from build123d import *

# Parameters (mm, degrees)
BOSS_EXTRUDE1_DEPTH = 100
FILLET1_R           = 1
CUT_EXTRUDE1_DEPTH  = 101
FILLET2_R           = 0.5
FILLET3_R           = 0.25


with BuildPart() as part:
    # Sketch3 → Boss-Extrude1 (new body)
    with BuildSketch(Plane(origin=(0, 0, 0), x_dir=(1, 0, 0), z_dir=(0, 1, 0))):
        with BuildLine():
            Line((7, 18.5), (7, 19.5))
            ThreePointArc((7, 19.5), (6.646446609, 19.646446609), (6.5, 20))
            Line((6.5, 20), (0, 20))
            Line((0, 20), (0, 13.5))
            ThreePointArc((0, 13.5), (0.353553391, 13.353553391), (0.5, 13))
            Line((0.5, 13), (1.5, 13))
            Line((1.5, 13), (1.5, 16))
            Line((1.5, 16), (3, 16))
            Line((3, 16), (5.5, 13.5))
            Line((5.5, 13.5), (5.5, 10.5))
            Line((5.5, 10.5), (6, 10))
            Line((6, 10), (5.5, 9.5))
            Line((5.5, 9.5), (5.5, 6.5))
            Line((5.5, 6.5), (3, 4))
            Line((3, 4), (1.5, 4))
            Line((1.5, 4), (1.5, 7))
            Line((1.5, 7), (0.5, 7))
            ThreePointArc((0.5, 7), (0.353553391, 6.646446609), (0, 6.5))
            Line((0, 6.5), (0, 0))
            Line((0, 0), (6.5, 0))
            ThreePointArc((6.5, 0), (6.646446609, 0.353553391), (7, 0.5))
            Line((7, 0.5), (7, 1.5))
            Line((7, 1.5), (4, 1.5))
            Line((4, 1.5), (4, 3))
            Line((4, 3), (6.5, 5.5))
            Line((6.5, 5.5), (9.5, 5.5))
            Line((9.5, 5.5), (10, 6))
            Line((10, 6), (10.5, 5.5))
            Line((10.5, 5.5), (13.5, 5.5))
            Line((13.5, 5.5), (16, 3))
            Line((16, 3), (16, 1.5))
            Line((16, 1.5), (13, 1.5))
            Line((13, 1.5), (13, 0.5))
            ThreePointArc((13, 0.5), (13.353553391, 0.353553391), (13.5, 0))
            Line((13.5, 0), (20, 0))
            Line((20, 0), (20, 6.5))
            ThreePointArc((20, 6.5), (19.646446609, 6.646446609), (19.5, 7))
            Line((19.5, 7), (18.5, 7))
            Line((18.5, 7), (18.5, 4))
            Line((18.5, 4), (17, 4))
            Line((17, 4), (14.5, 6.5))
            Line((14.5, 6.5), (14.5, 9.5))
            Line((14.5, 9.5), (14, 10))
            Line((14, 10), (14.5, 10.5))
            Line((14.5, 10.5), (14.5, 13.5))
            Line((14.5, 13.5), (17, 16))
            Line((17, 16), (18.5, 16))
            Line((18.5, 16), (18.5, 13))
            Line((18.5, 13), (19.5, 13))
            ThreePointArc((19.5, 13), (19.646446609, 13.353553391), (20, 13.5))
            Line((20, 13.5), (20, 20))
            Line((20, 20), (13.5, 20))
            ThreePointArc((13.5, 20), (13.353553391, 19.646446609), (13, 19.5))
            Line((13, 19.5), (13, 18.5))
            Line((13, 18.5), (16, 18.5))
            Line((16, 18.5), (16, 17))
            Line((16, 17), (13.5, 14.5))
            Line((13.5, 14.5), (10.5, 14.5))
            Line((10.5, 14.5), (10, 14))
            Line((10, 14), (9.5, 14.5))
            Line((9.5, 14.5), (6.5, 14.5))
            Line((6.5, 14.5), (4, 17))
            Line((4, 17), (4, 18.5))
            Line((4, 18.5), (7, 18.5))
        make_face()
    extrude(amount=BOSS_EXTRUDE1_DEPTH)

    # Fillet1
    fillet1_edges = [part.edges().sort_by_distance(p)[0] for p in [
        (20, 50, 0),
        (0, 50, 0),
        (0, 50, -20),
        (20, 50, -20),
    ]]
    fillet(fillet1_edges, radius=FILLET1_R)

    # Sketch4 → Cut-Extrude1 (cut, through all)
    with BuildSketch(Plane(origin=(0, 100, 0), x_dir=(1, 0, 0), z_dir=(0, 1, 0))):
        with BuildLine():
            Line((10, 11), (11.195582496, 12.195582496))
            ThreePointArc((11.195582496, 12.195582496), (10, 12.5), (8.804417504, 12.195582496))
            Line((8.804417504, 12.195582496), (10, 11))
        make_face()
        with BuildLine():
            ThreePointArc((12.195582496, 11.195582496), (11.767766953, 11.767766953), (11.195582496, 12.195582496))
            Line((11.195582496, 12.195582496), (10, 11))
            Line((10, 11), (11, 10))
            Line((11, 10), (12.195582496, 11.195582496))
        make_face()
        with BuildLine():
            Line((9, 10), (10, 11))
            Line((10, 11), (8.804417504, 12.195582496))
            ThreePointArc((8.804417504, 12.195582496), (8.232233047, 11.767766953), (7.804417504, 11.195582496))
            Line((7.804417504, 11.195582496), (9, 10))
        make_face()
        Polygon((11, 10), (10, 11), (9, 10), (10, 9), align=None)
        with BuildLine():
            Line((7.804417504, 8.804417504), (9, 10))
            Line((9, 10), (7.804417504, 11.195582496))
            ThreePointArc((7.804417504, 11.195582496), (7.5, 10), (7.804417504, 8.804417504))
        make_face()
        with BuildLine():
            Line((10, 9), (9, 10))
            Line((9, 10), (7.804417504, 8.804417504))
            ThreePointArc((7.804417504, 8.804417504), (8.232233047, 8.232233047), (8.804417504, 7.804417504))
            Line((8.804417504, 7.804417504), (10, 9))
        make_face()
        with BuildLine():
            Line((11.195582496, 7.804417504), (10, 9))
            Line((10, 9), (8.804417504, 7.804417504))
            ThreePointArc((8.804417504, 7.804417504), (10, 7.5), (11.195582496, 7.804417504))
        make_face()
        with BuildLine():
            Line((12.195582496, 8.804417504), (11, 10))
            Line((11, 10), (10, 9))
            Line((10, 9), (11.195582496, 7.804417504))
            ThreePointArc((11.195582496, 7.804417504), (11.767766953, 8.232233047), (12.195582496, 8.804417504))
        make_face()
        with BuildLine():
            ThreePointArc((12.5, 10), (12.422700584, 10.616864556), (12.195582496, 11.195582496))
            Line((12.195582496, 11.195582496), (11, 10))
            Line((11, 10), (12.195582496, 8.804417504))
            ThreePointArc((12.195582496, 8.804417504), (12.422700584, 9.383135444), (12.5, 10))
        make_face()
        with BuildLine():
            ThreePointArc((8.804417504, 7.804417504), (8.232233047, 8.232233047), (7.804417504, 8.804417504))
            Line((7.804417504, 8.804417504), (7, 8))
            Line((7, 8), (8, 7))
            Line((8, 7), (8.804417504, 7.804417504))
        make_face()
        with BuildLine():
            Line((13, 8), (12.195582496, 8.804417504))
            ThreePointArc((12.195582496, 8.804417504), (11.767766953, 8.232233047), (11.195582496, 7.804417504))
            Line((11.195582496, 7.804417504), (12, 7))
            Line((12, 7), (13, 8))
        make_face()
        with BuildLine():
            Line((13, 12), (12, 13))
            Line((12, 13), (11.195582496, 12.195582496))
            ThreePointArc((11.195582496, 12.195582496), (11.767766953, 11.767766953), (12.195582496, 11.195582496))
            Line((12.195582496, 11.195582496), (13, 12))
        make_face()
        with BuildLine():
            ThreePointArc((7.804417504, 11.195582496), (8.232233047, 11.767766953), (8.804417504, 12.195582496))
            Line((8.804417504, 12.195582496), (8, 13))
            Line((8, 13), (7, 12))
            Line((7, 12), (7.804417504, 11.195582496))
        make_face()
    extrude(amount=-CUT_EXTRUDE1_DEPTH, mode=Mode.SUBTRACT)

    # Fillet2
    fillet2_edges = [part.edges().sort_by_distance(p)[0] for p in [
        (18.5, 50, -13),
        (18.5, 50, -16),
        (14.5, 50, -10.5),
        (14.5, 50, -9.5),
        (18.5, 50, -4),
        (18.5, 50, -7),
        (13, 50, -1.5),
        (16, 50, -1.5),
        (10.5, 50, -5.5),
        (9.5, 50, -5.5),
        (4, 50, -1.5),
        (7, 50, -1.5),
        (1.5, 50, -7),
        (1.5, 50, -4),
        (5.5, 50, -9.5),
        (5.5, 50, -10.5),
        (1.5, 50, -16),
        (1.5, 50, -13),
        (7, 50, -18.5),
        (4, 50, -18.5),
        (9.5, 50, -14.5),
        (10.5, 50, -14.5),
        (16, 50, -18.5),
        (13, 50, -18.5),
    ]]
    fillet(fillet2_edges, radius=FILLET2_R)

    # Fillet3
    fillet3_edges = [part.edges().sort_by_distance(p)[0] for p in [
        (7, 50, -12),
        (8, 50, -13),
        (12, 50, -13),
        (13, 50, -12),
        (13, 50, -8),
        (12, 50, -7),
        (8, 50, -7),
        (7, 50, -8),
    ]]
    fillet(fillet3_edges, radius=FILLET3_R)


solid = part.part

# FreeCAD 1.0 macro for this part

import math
import FreeCAD as App
import Part
import Sketcher
from FreeCAD import Vector
Q = App.Units.Quantity


def edges_at(feature, points):
    """Names of the edges that pass closest to the given points."""
    edges = feature.Shape.Edges
    near = lambda p: min(range(len(edges)), key=lambda i: edges[i].distToShape(Part.Vertex(*p))[0])
    return sorted({f"Edge{near(p) + 1}" for p in points})

doc = App.newDocument("Part")
body = doc.addObject("PartDesign::Body", "Body")

sketch1 = body.newObject("Sketcher::SketchObject", "Sketch")
sketch1.AttachmentSupport = (doc.getObject("XZ_Plane"), [""])
sketch1.MapMode = "FlatFace"
sketch1.addGeometry(Part.LineSegment(Vector(7, -18.5, 0), Vector(7, -19.5, 0)), False)
sketch1.addGeometry(Part.ArcOfCircle(Part.Circle(Vector(7, -20, 0), Vector(0, 0, 1), 0.5), math.radians(90), math.radians(180)), False)
sketch1.addGeometry(Part.LineSegment(Vector(6.5, -20, 0), Vector(0, -20, 0)), False)
sketch1.addGeometry(Part.LineSegment(Vector(0, -20, 0), Vector(0, -13.5, 0)), False)
sketch1.addGeometry(Part.ArcOfCircle(Part.Circle(Vector(0, -13, 0), Vector(0, 0, 1), 0.5), math.radians(-90), math.radians(0)), False)
sketch1.addGeometry(Part.LineSegment(Vector(0.5, -13, 0), Vector(1.5, -13, 0)), False)
sketch1.addGeometry(Part.LineSegment(Vector(1.5, -13, 0), Vector(1.5, -16, 0)), False)
sketch1.addGeometry(Part.LineSegment(Vector(1.5, -16, 0), Vector(3, -16, 0)), False)
sketch1.addGeometry(Part.LineSegment(Vector(3, -16, 0), Vector(5.5, -13.5, 0)), False)
sketch1.addGeometry(Part.LineSegment(Vector(5.5, -13.5, 0), Vector(5.5, -10.5, 0)), False)
sketch1.addGeometry(Part.LineSegment(Vector(5.5, -10.5, 0), Vector(6, -10, 0)), False)
sketch1.addGeometry(Part.LineSegment(Vector(6, -10, 0), Vector(5.5, -9.5, 0)), False)
sketch1.addGeometry(Part.LineSegment(Vector(5.5, -9.5, 0), Vector(5.5, -6.5, 0)), False)
sketch1.addGeometry(Part.LineSegment(Vector(5.5, -6.5, 0), Vector(3, -4, 0)), False)
sketch1.addGeometry(Part.LineSegment(Vector(3, -4, 0), Vector(1.5, -4, 0)), False)
sketch1.addGeometry(Part.LineSegment(Vector(1.5, -4, 0), Vector(1.5, -7, 0)), False)
sketch1.addGeometry(Part.LineSegment(Vector(1.5, -7, 0), Vector(0.5, -7, 0)), False)
sketch1.addGeometry(Part.ArcOfCircle(Part.Circle(Vector(0, -7, 0), Vector(0, 0, 1), 0.5), math.radians(0), math.radians(90)), False)
sketch1.addGeometry(Part.LineSegment(Vector(0, -6.5, 0), Vector(0, 0, 0)), False)
sketch1.addGeometry(Part.LineSegment(Vector(0, 0, 0), Vector(6.5, 0, 0)), False)
sketch1.addGeometry(Part.ArcOfCircle(Part.Circle(Vector(7, 0, 0), Vector(0, 0, 1), 0.5), math.radians(180), math.radians(270)), False)
sketch1.addGeometry(Part.LineSegment(Vector(7, -0.5, 0), Vector(7, -1.5, 0)), False)
sketch1.addGeometry(Part.LineSegment(Vector(7, -1.5, 0), Vector(4, -1.5, 0)), False)
sketch1.addGeometry(Part.LineSegment(Vector(4, -1.5, 0), Vector(4, -3, 0)), False)
sketch1.addGeometry(Part.LineSegment(Vector(4, -3, 0), Vector(6.5, -5.5, 0)), False)
sketch1.addGeometry(Part.LineSegment(Vector(6.5, -5.5, 0), Vector(9.5, -5.5, 0)), False)
sketch1.addGeometry(Part.LineSegment(Vector(9.5, -5.5, 0), Vector(10, -6, 0)), False)
sketch1.addGeometry(Part.LineSegment(Vector(10, -6, 0), Vector(10.5, -5.5, 0)), False)
sketch1.addGeometry(Part.LineSegment(Vector(10.5, -5.5, 0), Vector(13.5, -5.5, 0)), False)
sketch1.addGeometry(Part.LineSegment(Vector(13.5, -5.5, 0), Vector(16, -3, 0)), False)
sketch1.addGeometry(Part.LineSegment(Vector(16, -3, 0), Vector(16, -1.5, 0)), False)
sketch1.addGeometry(Part.LineSegment(Vector(16, -1.5, 0), Vector(13, -1.5, 0)), False)
sketch1.addGeometry(Part.LineSegment(Vector(13, -1.5, 0), Vector(13, -0.5, 0)), False)
sketch1.addGeometry(Part.ArcOfCircle(Part.Circle(Vector(13, 0, 0), Vector(0, 0, 1), 0.5), math.radians(-90), math.radians(0)), False)
sketch1.addGeometry(Part.LineSegment(Vector(13.5, 0, 0), Vector(20, 0, 0)), False)
sketch1.addGeometry(Part.LineSegment(Vector(20, 0, 0), Vector(20, -6.5, 0)), False)
sketch1.addGeometry(Part.ArcOfCircle(Part.Circle(Vector(20, -7, 0), Vector(0, 0, 1), 0.5), math.radians(90), math.radians(180)), False)
sketch1.addGeometry(Part.LineSegment(Vector(19.5, -7, 0), Vector(18.5, -7, 0)), False)
sketch1.addGeometry(Part.LineSegment(Vector(18.5, -7, 0), Vector(18.5, -4, 0)), False)
sketch1.addGeometry(Part.LineSegment(Vector(18.5, -4, 0), Vector(17, -4, 0)), False)
sketch1.addGeometry(Part.LineSegment(Vector(17, -4, 0), Vector(14.5, -6.5, 0)), False)
sketch1.addGeometry(Part.LineSegment(Vector(14.5, -6.5, 0), Vector(14.5, -9.5, 0)), False)
sketch1.addGeometry(Part.LineSegment(Vector(14.5, -9.5, 0), Vector(14, -10, 0)), False)
sketch1.addGeometry(Part.LineSegment(Vector(14, -10, 0), Vector(14.5, -10.5, 0)), False)
sketch1.addGeometry(Part.LineSegment(Vector(14.5, -10.5, 0), Vector(14.5, -13.5, 0)), False)
sketch1.addGeometry(Part.LineSegment(Vector(14.5, -13.5, 0), Vector(17, -16, 0)), False)
sketch1.addGeometry(Part.LineSegment(Vector(17, -16, 0), Vector(18.5, -16, 0)), False)
sketch1.addGeometry(Part.LineSegment(Vector(18.5, -16, 0), Vector(18.5, -13, 0)), False)
sketch1.addGeometry(Part.LineSegment(Vector(18.5, -13, 0), Vector(19.5, -13, 0)), False)
sketch1.addGeometry(Part.ArcOfCircle(Part.Circle(Vector(20, -13, 0), Vector(0, 0, 1), 0.5), math.radians(180), math.radians(270)), False)
sketch1.addGeometry(Part.LineSegment(Vector(20, -13.5, 0), Vector(20, -20, 0)), False)
sketch1.addGeometry(Part.LineSegment(Vector(20, -20, 0), Vector(13.5, -20, 0)), False)
sketch1.addGeometry(Part.ArcOfCircle(Part.Circle(Vector(13, -20, 0), Vector(0, 0, 1), 0.5), math.radians(0), math.radians(90)), False)
sketch1.addGeometry(Part.LineSegment(Vector(13, -19.5, 0), Vector(13, -18.5, 0)), False)
sketch1.addGeometry(Part.LineSegment(Vector(13, -18.5, 0), Vector(16, -18.5, 0)), False)
sketch1.addGeometry(Part.LineSegment(Vector(16, -18.5, 0), Vector(16, -17, 0)), False)
sketch1.addGeometry(Part.LineSegment(Vector(16, -17, 0), Vector(13.5, -14.5, 0)), False)
sketch1.addGeometry(Part.LineSegment(Vector(13.5, -14.5, 0), Vector(10.5, -14.5, 0)), False)
sketch1.addGeometry(Part.LineSegment(Vector(10.5, -14.5, 0), Vector(10, -14, 0)), False)
sketch1.addGeometry(Part.LineSegment(Vector(10, -14, 0), Vector(9.5, -14.5, 0)), False)
sketch1.addGeometry(Part.LineSegment(Vector(9.5, -14.5, 0), Vector(6.5, -14.5, 0)), False)
sketch1.addGeometry(Part.LineSegment(Vector(6.5, -14.5, 0), Vector(4, -17, 0)), False)
sketch1.addGeometry(Part.LineSegment(Vector(4, -17, 0), Vector(4, -18.5, 0)), False)
sketch1.addGeometry(Part.LineSegment(Vector(4, -18.5, 0), Vector(7, -18.5, 0)), False)
sketch1.addConstraint(Sketcher.Constraint("Coincident", 0, 2, 1, 1))
sketch1.addConstraint(Sketcher.Constraint("Coincident", 1, 2, 2, 1))
sketch1.addConstraint(Sketcher.Constraint("Coincident", 2, 2, 3, 1))
sketch1.addConstraint(Sketcher.Constraint("Coincident", 3, 2, 4, 1))
sketch1.addConstraint(Sketcher.Constraint("Coincident", 4, 2, 5, 1))
sketch1.addConstraint(Sketcher.Constraint("Coincident", 5, 2, 6, 1))
sketch1.addConstraint(Sketcher.Constraint("Coincident", 6, 2, 7, 1))
sketch1.addConstraint(Sketcher.Constraint("Coincident", 7, 2, 8, 1))
sketch1.addConstraint(Sketcher.Constraint("Coincident", 8, 2, 9, 1))
sketch1.addConstraint(Sketcher.Constraint("Coincident", 9, 2, 10, 1))
sketch1.addConstraint(Sketcher.Constraint("Coincident", 10, 2, 11, 1))
sketch1.addConstraint(Sketcher.Constraint("Coincident", 11, 2, 12, 1))
sketch1.addConstraint(Sketcher.Constraint("Coincident", 12, 2, 13, 1))
sketch1.addConstraint(Sketcher.Constraint("Coincident", 13, 2, 14, 1))
sketch1.addConstraint(Sketcher.Constraint("Coincident", 14, 2, 15, 1))
sketch1.addConstraint(Sketcher.Constraint("Coincident", 15, 2, 16, 1))
sketch1.addConstraint(Sketcher.Constraint("Coincident", 16, 2, 17, 1))
sketch1.addConstraint(Sketcher.Constraint("Coincident", 17, 2, 18, 1))
sketch1.addConstraint(Sketcher.Constraint("Coincident", 18, 2, 19, 1))
sketch1.addConstraint(Sketcher.Constraint("Coincident", 19, 2, 20, 1))
sketch1.addConstraint(Sketcher.Constraint("Coincident", 20, 2, 21, 1))
sketch1.addConstraint(Sketcher.Constraint("Coincident", 21, 2, 22, 1))
sketch1.addConstraint(Sketcher.Constraint("Coincident", 22, 2, 23, 1))
sketch1.addConstraint(Sketcher.Constraint("Coincident", 23, 2, 24, 1))
sketch1.addConstraint(Sketcher.Constraint("Coincident", 24, 2, 25, 1))
sketch1.addConstraint(Sketcher.Constraint("Coincident", 25, 2, 26, 1))
sketch1.addConstraint(Sketcher.Constraint("Coincident", 26, 2, 27, 1))
sketch1.addConstraint(Sketcher.Constraint("Coincident", 27, 2, 28, 1))
sketch1.addConstraint(Sketcher.Constraint("Coincident", 28, 2, 29, 1))
sketch1.addConstraint(Sketcher.Constraint("Coincident", 29, 2, 30, 1))
sketch1.addConstraint(Sketcher.Constraint("Coincident", 30, 2, 31, 1))
sketch1.addConstraint(Sketcher.Constraint("Coincident", 31, 2, 32, 1))
sketch1.addConstraint(Sketcher.Constraint("Coincident", 32, 2, 33, 1))
sketch1.addConstraint(Sketcher.Constraint("Coincident", 33, 2, 34, 1))
sketch1.addConstraint(Sketcher.Constraint("Coincident", 34, 2, 35, 1))
sketch1.addConstraint(Sketcher.Constraint("Coincident", 35, 2, 36, 1))
sketch1.addConstraint(Sketcher.Constraint("Coincident", 36, 2, 37, 1))
sketch1.addConstraint(Sketcher.Constraint("Coincident", 37, 2, 38, 1))
sketch1.addConstraint(Sketcher.Constraint("Coincident", 38, 2, 39, 1))
sketch1.addConstraint(Sketcher.Constraint("Coincident", 39, 2, 40, 1))
sketch1.addConstraint(Sketcher.Constraint("Coincident", 40, 2, 41, 1))
sketch1.addConstraint(Sketcher.Constraint("Coincident", 41, 2, 42, 1))
sketch1.addConstraint(Sketcher.Constraint("Coincident", 42, 2, 43, 1))
sketch1.addConstraint(Sketcher.Constraint("Coincident", 43, 2, 44, 1))
sketch1.addConstraint(Sketcher.Constraint("Coincident", 44, 2, 45, 1))
sketch1.addConstraint(Sketcher.Constraint("Coincident", 45, 2, 46, 1))
sketch1.addConstraint(Sketcher.Constraint("Coincident", 46, 2, 47, 1))
sketch1.addConstraint(Sketcher.Constraint("Coincident", 47, 2, 48, 1))
sketch1.addConstraint(Sketcher.Constraint("Coincident", 48, 2, 49, 1))
sketch1.addConstraint(Sketcher.Constraint("Coincident", 49, 2, 50, 1))
sketch1.addConstraint(Sketcher.Constraint("Coincident", 50, 2, 51, 1))
sketch1.addConstraint(Sketcher.Constraint("Coincident", 51, 2, 52, 1))
sketch1.addConstraint(Sketcher.Constraint("Coincident", 52, 2, 53, 1))
sketch1.addConstraint(Sketcher.Constraint("Coincident", 53, 2, 54, 1))
sketch1.addConstraint(Sketcher.Constraint("Coincident", 54, 2, 55, 1))
sketch1.addConstraint(Sketcher.Constraint("Coincident", 55, 2, 56, 1))
sketch1.addConstraint(Sketcher.Constraint("Coincident", 56, 2, 57, 1))
sketch1.addConstraint(Sketcher.Constraint("Coincident", 57, 2, 58, 1))
sketch1.addConstraint(Sketcher.Constraint("Coincident", 58, 2, 59, 1))
sketch1.addConstraint(Sketcher.Constraint("Coincident", 59, 2, 60, 1))
sketch1.addConstraint(Sketcher.Constraint("Coincident", 60, 2, 61, 1))
sketch1.addConstraint(Sketcher.Constraint("Coincident", 61, 2, 62, 1))
sketch1.addConstraint(Sketcher.Constraint("Coincident", 62, 2, 63, 1))
sketch1.addConstraint(Sketcher.Constraint("Coincident", 63, 2, 0, 1))
sketch1.addConstraint(Sketcher.Constraint("Vertical", 0))
sketch1.addConstraint(Sketcher.Constraint("Horizontal", 2))
sketch1.addConstraint(Sketcher.Constraint("Vertical", 3))
sketch1.addConstraint(Sketcher.Constraint("Horizontal", 5))
sketch1.addConstraint(Sketcher.Constraint("Vertical", 6))
sketch1.addConstraint(Sketcher.Constraint("Horizontal", 7))
sketch1.addConstraint(Sketcher.Constraint("Vertical", 9))
sketch1.addConstraint(Sketcher.Constraint("Vertical", 12))
sketch1.addConstraint(Sketcher.Constraint("Horizontal", 14))
sketch1.addConstraint(Sketcher.Constraint("Vertical", 15))
sketch1.addConstraint(Sketcher.Constraint("Horizontal", 16))
sketch1.addConstraint(Sketcher.Constraint("Vertical", 18))
sketch1.addConstraint(Sketcher.Constraint("Horizontal", 19))
sketch1.addConstraint(Sketcher.Constraint("Vertical", 21))
sketch1.addConstraint(Sketcher.Constraint("Horizontal", 22))
sketch1.addConstraint(Sketcher.Constraint("Vertical", 23))
sketch1.addConstraint(Sketcher.Constraint("Horizontal", 25))
sketch1.addConstraint(Sketcher.Constraint("Horizontal", 28))
sketch1.addConstraint(Sketcher.Constraint("Vertical", 30))
sketch1.addConstraint(Sketcher.Constraint("Horizontal", 31))
sketch1.addConstraint(Sketcher.Constraint("Vertical", 32))
sketch1.addConstraint(Sketcher.Constraint("Horizontal", 34))
sketch1.addConstraint(Sketcher.Constraint("Vertical", 35))
sketch1.addConstraint(Sketcher.Constraint("Horizontal", 37))
sketch1.addConstraint(Sketcher.Constraint("Vertical", 38))
sketch1.addConstraint(Sketcher.Constraint("Horizontal", 39))
sketch1.addConstraint(Sketcher.Constraint("Vertical", 41))
sketch1.addConstraint(Sketcher.Constraint("Vertical", 44))
sketch1.addConstraint(Sketcher.Constraint("Horizontal", 46))
sketch1.addConstraint(Sketcher.Constraint("Vertical", 47))
sketch1.addConstraint(Sketcher.Constraint("Horizontal", 48))
sketch1.addConstraint(Sketcher.Constraint("Vertical", 50))
sketch1.addConstraint(Sketcher.Constraint("Horizontal", 51))
sketch1.addConstraint(Sketcher.Constraint("Vertical", 53))
sketch1.addConstraint(Sketcher.Constraint("Horizontal", 54))
sketch1.addConstraint(Sketcher.Constraint("Vertical", 55))
sketch1.addConstraint(Sketcher.Constraint("Horizontal", 57))
sketch1.addConstraint(Sketcher.Constraint("Horizontal", 60))
sketch1.addConstraint(Sketcher.Constraint("Vertical", 62))
sketch1.addConstraint(Sketcher.Constraint("Horizontal", 63))
sketch1.addConstraint(Sketcher.Constraint("Coincident", 18, 2, -1, 1))
sketch1.addConstraint(Sketcher.Constraint("Equal", 1, 4))
sketch1.addConstraint(Sketcher.Constraint("Equal", 4, 17))
sketch1.addConstraint(Sketcher.Constraint("Equal", 17, 20))
sketch1.addConstraint(Sketcher.Constraint("Equal", 20, 33))
sketch1.addConstraint(Sketcher.Constraint("Equal", 33, 36))
sketch1.addConstraint(Sketcher.Constraint("Equal", 36, 49))
sketch1.addConstraint(Sketcher.Constraint("Equal", 49, 52))
sketch1.addConstraint(Sketcher.Constraint("PointOnObject", 4, 3, -2))
sketch1.addConstraint(Sketcher.Constraint("PointOnObject", 17, 3, -2))
sketch1.addConstraint(Sketcher.Constraint("PointOnObject", 20, 3, -1))
sketch1.addConstraint(Sketcher.Constraint("PointOnObject", 33, 3, -1))
sketch1.addConstraint(Sketcher.Constraint("PointOnObject", 2, 2, -2))
sketch1.addConstraint(Sketcher.Constraint("PointOnObject", 33, 2, -1))
sketch1.addConstraint(Sketcher.Constraint("Parallel", 8, 10))
sketch1.addConstraint(Sketcher.Constraint("Perpendicular", 10, 11))
sketch1.addConstraint(Sketcher.Constraint("Parallel", 11, 13))
sketch1.addConstraint(Sketcher.Constraint("Parallel", 13, 24))
sketch1.addConstraint(Sketcher.Constraint("Parallel", 24, 26))
sketch1.addConstraint(Sketcher.Constraint("Perpendicular", 26, 27))
sketch1.addConstraint(Sketcher.Constraint("Parallel", 27, 29))
sketch1.addConstraint(Sketcher.Constraint("Parallel", 29, 40))
sketch1.addConstraint(Sketcher.Constraint("Parallel", 40, 42))
sketch1.addConstraint(Sketcher.Constraint("Perpendicular", 42, 43))
sketch1.addConstraint(Sketcher.Constraint("Parallel", 43, 45))
sketch1.addConstraint(Sketcher.Constraint("Parallel", 45, 56))
sketch1.addConstraint(Sketcher.Constraint("Parallel", 56, 58))
sketch1.addConstraint(Sketcher.Constraint("Perpendicular", 58, 59))
sketch1.addConstraint(Sketcher.Constraint("Parallel", 59, 61))
sketch1.addConstraint(Sketcher.Constraint("Horizontal", 17, 3, 36, 3))
sketch1.addConstraint(Sketcher.Constraint("Horizontal", 4, 3, 49, 3))
sketch1.addConstraint(Sketcher.Constraint("Horizontal", 1, 3, 52, 3))
sketch1.addConstraint(Sketcher.Constraint("Horizontal", 52, 3, 1, 2))
sketch1.addConstraint(Sketcher.Constraint("Horizontal", 49, 3, 4, 2))
sketch1.addConstraint(Sketcher.Constraint("Horizontal", 3, 2, 8, 2))
sketch1.addConstraint(Sketcher.Constraint("Horizontal", 36, 3, 15, 2))
sketch1.addConstraint(Sketcher.Constraint("Horizontal", 12, 2, 17, 2))
sketch1.addConstraint(Sketcher.Constraint("Horizontal", 25, 2, 27, 2))
sketch1.addConstraint(Sketcher.Constraint("Horizontal", 23, 2, 29, 2))
sketch1.addConstraint(Sketcher.Constraint("Horizontal", 22, 2, 30, 2))
sketch1.addConstraint(Sketcher.Constraint("Horizontal", 16, 2, 36, 2))
sketch1.addConstraint(Sketcher.Constraint("Horizontal", 14, 2, 38, 2))
sketch1.addConstraint(Sketcher.Constraint("Horizontal", 35, 2, 40, 2))
sketch1.addConstraint(Sketcher.Constraint("Horizontal", 11, 2, 41, 2))
sketch1.addConstraint(Sketcher.Constraint("Horizontal", 10, 2, 42, 2))
sketch1.addConstraint(Sketcher.Constraint("Horizontal", 9, 2, 43, 2))
sketch1.addConstraint(Sketcher.Constraint("Horizontal", 8, 2, 44, 2))
sketch1.addConstraint(Sketcher.Constraint("Horizontal", 7, 2, 45, 2))
sketch1.addConstraint(Sketcher.Constraint("Horizontal", 5, 2, 47, 2))
sketch1.addConstraint(Sketcher.Constraint("Horizontal", 2, 2, 50, 2))
sketch1.addConstraint(Sketcher.Constraint("Horizontal", 57, 2, 59, 2))
sketch1.addConstraint(Sketcher.Constraint("Horizontal", 55, 2, 61, 2))
sketch1.addConstraint(Sketcher.Constraint("Horizontal", 54, 2, 62, 2))
sketch1.addConstraint(Sketcher.Constraint("Vertical", 1, 3, 20, 3))
sketch1.addConstraint(Sketcher.Constraint("Vertical", 36, 3, 49, 3))
sketch1.addConstraint(Sketcher.Constraint("Vertical", 33, 3, 52, 3))
sketch1.addConstraint(Sketcher.Constraint("Vertical", 20, 3, 0, 2))
sketch1.addConstraint(Sketcher.Constraint("Vertical", 9, 2, 11, 2))
sketch1.addConstraint(Sketcher.Constraint("Vertical", 7, 2, 13, 2))
sketch1.addConstraint(Sketcher.Constraint("Vertical", 6, 2, 14, 2))
sketch1.addConstraint(Sketcher.Constraint("Vertical", 0, 2, 20, 2))
sketch1.addConstraint(Sketcher.Constraint("Vertical", 19, 2, 24, 2))
sketch1.addConstraint(Sketcher.Constraint("Vertical", 52, 3, 31, 2))
sketch1.addConstraint(Sketcher.Constraint("Vertical", 28, 2, 33, 2))
sketch1.addConstraint(Sketcher.Constraint("Vertical", 49, 3, 34, 2))
sketch1.addConstraint(Sketcher.Constraint("Vertical", 41, 2, 43, 2))
sketch1.addConstraint(Sketcher.Constraint("Vertical", 38, 2, 46, 2))
sketch1.addConstraint(Sketcher.Constraint("Vertical", 35, 2, 49, 2))
sketch1.addConstraint(Sketcher.Constraint("Vertical", 32, 2, 52, 2))
sketch1.addConstraint(Sketcher.Constraint("Vertical", 30, 2, 54, 2))
sketch1.addConstraint(Sketcher.Constraint("Vertical", 51, 2, 56, 2))
sketch1.addConstraint(Sketcher.Constraint("Vertical", 27, 2, 57, 2))
sketch1.addConstraint(Sketcher.Constraint("Vertical", 26, 2, 58, 2))
sketch1.addConstraint(Sketcher.Constraint("Vertical", 24, 2, 60, 2))
sketch1.addConstraint(Sketcher.Constraint("Equal", 22, 25))
sketch1.addConstraint(Sketcher.Constraint("Equal", 25, 28))
sketch1.addConstraint(Sketcher.Constraint("Equal", 19, 34))
sketch1.addConstraint(Sketcher.Constraint("Equal", 16, 37))
sketch1.addConstraint(Sketcher.Constraint("Equal", 14, 39))
sketch1.addConstraint(Sketcher.Constraint("Equal", 48, 0))
sketch1.addConstraint(Sketcher.Constraint("Equal", 51, 3))
sketch1.addConstraint(Sketcher.Constraint("Equal", 63, 6))
sketch1.addConstraint(Sketcher.Constraint("Equal", 6, 9))
sketch1.addConstraint(Sketcher.Constraint("Equal", 9, 12))
sketch1.addConstraint(Sketcher.Constraint("Equal", 3, 18))
sketch1.addConstraint(Sketcher.Constraint("Equal", 0, 21))
sketch1.addConstraint(Sketcher.Constraint("Equal", 46, 23))
sketch1.addConstraint(Sketcher.Constraint("Equal", 30, 55))
sketch1.addConstraint(Sketcher.Constraint("Equal", 11, 26))
sketch1.addConstraint(Sketcher.Constraint("Radius", 1, Q("0.5 mm")))
sketch1.addConstraint(Sketcher.Constraint("DistanceX", 5, 1, 5, 2, Q("1 mm")))
sketch1.addConstraint(Sketcher.Constraint("DistanceX", 22, 2, 22, 1, Q("3 mm")))
sketch1.addConstraint(Sketcher.Constraint("DistanceX", 2, 2, 2, 1, Q("6.5 mm")))
sketch1.addConstraint(Sketcher.Constraint("DistanceX", 7, 1, 7, 2, Q("1.5 mm")))
sketch1.addConstraint(Sketcher.Constraint("DistanceY", 1, 3, -1, 1, Q("20 mm")))
pad1 = body.newObject("PartDesign::Pad", "Pad")
pad1.Profile = sketch1
pad1.Length = 100
pad1.Reversed = True
doc.recompute()

fillet = body.newObject("PartDesign::Fillet", "Fillet")
fillet.Base = (pad1, edges_at(pad1, [
    (20, 50, 0),
    (0, 50, 0),
    (0, 50, -20),
    (20, 50, -20),
]))
fillet.Radius = 1

sketch2 = body.newObject("Sketcher::SketchObject", "Sketch001")
sketch2.AttachmentSupport = (doc.getObject("XZ_Plane"), [""])
sketch2.MapMode = "FlatFace"
sketch2.AttachmentOffset = App.Placement(Vector(0, 0, -100), App.Rotation())
sketch2.addGeometry(Part.ArcOfCircle(Part.Circle(Vector(10, -10, 0), Vector(0, 0, 1), 2.5), math.radians(-119), math.radians(-61)), False)
sketch2.addGeometry(Part.LineSegment(Vector(8.8, -12.2, 0), Vector(8, -13, 0)), False)
sketch2.addGeometry(Part.LineSegment(Vector(8, -13, 0), Vector(7, -12, 0)), False)
sketch2.addGeometry(Part.LineSegment(Vector(7, -12, 0), Vector(7.8, -11.2, 0)), False)
sketch2.addGeometry(Part.ArcOfCircle(Part.Circle(Vector(10, -10, 0), Vector(0, 0, 1), 2.5), math.radians(151), math.radians(209)), False)
sketch2.addGeometry(Part.LineSegment(Vector(7.8, -8.8, 0), Vector(7, -8, 0)), False)
sketch2.addGeometry(Part.LineSegment(Vector(7, -8, 0), Vector(8, -7, 0)), False)
sketch2.addGeometry(Part.LineSegment(Vector(8, -7, 0), Vector(8.8, -7.8, 0)), False)
sketch2.addGeometry(Part.ArcOfCircle(Part.Circle(Vector(10, -10, 0), Vector(0, 0, 1), 2.5), math.radians(61), math.radians(119)), False)
sketch2.addGeometry(Part.LineSegment(Vector(11.2, -7.8, 0), Vector(12, -7, 0)), False)
sketch2.addGeometry(Part.LineSegment(Vector(12, -7, 0), Vector(13, -8, 0)), False)
sketch2.addGeometry(Part.LineSegment(Vector(13, -8, 0), Vector(12.2, -8.8, 0)), False)
sketch2.addGeometry(Part.ArcOfCircle(Part.Circle(Vector(10, -10, 0), Vector(0, 0, 1), 2.5), math.radians(0), math.radians(29)), False)
sketch2.addGeometry(Part.ArcOfCircle(Part.Circle(Vector(10, -10, 0), Vector(0, 0, 1), 2.5), math.radians(-29), math.radians(0)), False)
sketch2.addGeometry(Part.LineSegment(Vector(12.2, -11.2, 0), Vector(13, -12, 0)), False)
sketch2.addGeometry(Part.LineSegment(Vector(13, -12, 0), Vector(12, -13, 0)), False)
sketch2.addGeometry(Part.LineSegment(Vector(12, -13, 0), Vector(11.2, -12.2, 0)), False)
sketch2.addConstraint(Sketcher.Constraint("Coincident", 0, 1, 1, 1))
sketch2.addConstraint(Sketcher.Constraint("Coincident", 1, 2, 2, 1))
sketch2.addConstraint(Sketcher.Constraint("Coincident", 2, 2, 3, 1))
sketch2.addConstraint(Sketcher.Constraint("Coincident", 3, 2, 4, 2))
sketch2.addConstraint(Sketcher.Constraint("Coincident", 4, 1, 5, 1))
sketch2.addConstraint(Sketcher.Constraint("Coincident", 5, 2, 6, 1))
sketch2.addConstraint(Sketcher.Constraint("Coincident", 6, 2, 7, 1))
sketch2.addConstraint(Sketcher.Constraint("Coincident", 7, 2, 8, 2))
sketch2.addConstraint(Sketcher.Constraint("Coincident", 8, 1, 9, 1))
sketch2.addConstraint(Sketcher.Constraint("Coincident", 9, 2, 10, 1))
sketch2.addConstraint(Sketcher.Constraint("Coincident", 10, 2, 11, 1))
sketch2.addConstraint(Sketcher.Constraint("Coincident", 11, 2, 12, 2))
sketch2.addConstraint(Sketcher.Constraint("Tangent", 12, 1, 13, 2))
sketch2.addConstraint(Sketcher.Constraint("Coincident", 13, 1, 14, 1))
sketch2.addConstraint(Sketcher.Constraint("Coincident", 14, 2, 15, 1))
sketch2.addConstraint(Sketcher.Constraint("Coincident", 15, 2, 16, 1))
sketch2.addConstraint(Sketcher.Constraint("Coincident", 16, 2, 0, 2))
sketch2.addConstraint(Sketcher.Constraint("Coincident", 4, 3, 0, 3))
sketch2.addConstraint(Sketcher.Constraint("Coincident", 8, 3, 0, 3))
sketch2.addConstraint(Sketcher.Constraint("Coincident", 12, 3, 0, 3))
sketch2.addConstraint(Sketcher.Constraint("Equal", 0, 4))
sketch2.addConstraint(Sketcher.Constraint("Equal", 4, 8))
sketch2.addConstraint(Sketcher.Constraint("Equal", 8, 12))
sketch2.addConstraint(Sketcher.Constraint("Equal", 12, 13))
sketch2.addConstraint(Sketcher.Constraint("Perpendicular", 1, 2))
sketch2.addConstraint(Sketcher.Constraint("Perpendicular", 2, 3))
sketch2.addConstraint(Sketcher.Constraint("Perpendicular", 3, 5))
sketch2.addConstraint(Sketcher.Constraint("Perpendicular", 5, 6))
sketch2.addConstraint(Sketcher.Constraint("Perpendicular", 6, 7))
sketch2.addConstraint(Sketcher.Constraint("Perpendicular", 7, 9))
sketch2.addConstraint(Sketcher.Constraint("Perpendicular", 9, 10))
sketch2.addConstraint(Sketcher.Constraint("Perpendicular", 10, 11))
sketch2.addConstraint(Sketcher.Constraint("Perpendicular", 11, 14))
sketch2.addConstraint(Sketcher.Constraint("Perpendicular", 14, 15))
sketch2.addConstraint(Sketcher.Constraint("Perpendicular", 15, 16))
sketch2.addConstraint(Sketcher.Constraint("Horizontal", 7, 2, 8, 1))
sketch2.addConstraint(Sketcher.Constraint("Horizontal", 6, 2, 9, 2))
sketch2.addConstraint(Sketcher.Constraint("Horizontal", 5, 2, 10, 2))
sketch2.addConstraint(Sketcher.Constraint("Horizontal", 4, 1, 11, 2))
sketch2.addConstraint(Sketcher.Constraint("Horizontal", 13, 3, 12, 1))
sketch2.addConstraint(Sketcher.Constraint("Horizontal", 3, 2, 13, 1))
sketch2.addConstraint(Sketcher.Constraint("Horizontal", 2, 2, 14, 2))
sketch2.addConstraint(Sketcher.Constraint("Horizontal", 1, 2, 15, 2))
sketch2.addConstraint(Sketcher.Constraint("Vertical", 3, 2, 4, 1))
sketch2.addConstraint(Sketcher.Constraint("Vertical", 2, 2, 5, 2))
sketch2.addConstraint(Sketcher.Constraint("Vertical", 1, 2, 6, 2))
sketch2.addConstraint(Sketcher.Constraint("Equal", 1, 3))
sketch2.addConstraint(Sketcher.Constraint("Radius", 0, Q("2.5 mm")))
sketch2.addConstraint(Sketcher.Constraint("DistanceX", -1, 1, 0, 3, Q("10 mm")))
sketch2.addConstraint(Sketcher.Constraint("DistanceY", 0, 3, -1, 1, Q("10 mm")))
sketch2.addConstraint(Sketcher.Constraint("DistanceX", -1, 1, 1, 2, Q("8 mm")))
sketch2.addConstraint(Sketcher.Constraint("DistanceY", 1, 2, -1, 1, Q("13 mm")))
pocket1 = body.newObject("PartDesign::Pocket", "Pocket")
pocket1.Profile = sketch2
pocket1.Type = "ThroughAll"
pocket1.Reversed = True
doc.recompute()

fillet2 = body.newObject("PartDesign::Fillet", "Fillet001")
fillet2.Base = (pocket1, edges_at(pocket1, [
    (18.5, 50, -13),
    (18.5, 50, -16),
    (14.5, 50, -10.5),
    (14.5, 50, -9.5),
    (18.5, 50, -4),
    (18.5, 50, -7),
    (13, 50, -1.5),
    (16, 50, -1.5),
    (10.5, 50, -5.5),
    (9.5, 50, -5.5),
    (4, 50, -1.5),
    (7, 50, -1.5),
    (1.5, 50, -7),
    (1.5, 50, -4),
    (5.5, 50, -9.5),
    (5.5, 50, -10.5),
    (1.5, 50, -16),
    (1.5, 50, -13),
    (7, 50, -18.5),
    (4, 50, -18.5),
    (9.5, 50, -14.5),
    (10.5, 50, -14.5),
    (16, 50, -18.5),
    (13, 50, -18.5),
]))
fillet2.Radius = 0.5
doc.recompute()

fillet3 = body.newObject("PartDesign::Fillet", "Fillet002")
fillet3.Base = (fillet2, edges_at(fillet2, [
    (7, 50, -12),
    (8, 50, -13),
    (12, 50, -13),
    (13, 50, -12),
    (13, 50, -8),
    (12, 50, -7),
    (8, 50, -7),
    (7, 50, -8),
]))
fillet3.Radius = 0.25

doc.recompute()
